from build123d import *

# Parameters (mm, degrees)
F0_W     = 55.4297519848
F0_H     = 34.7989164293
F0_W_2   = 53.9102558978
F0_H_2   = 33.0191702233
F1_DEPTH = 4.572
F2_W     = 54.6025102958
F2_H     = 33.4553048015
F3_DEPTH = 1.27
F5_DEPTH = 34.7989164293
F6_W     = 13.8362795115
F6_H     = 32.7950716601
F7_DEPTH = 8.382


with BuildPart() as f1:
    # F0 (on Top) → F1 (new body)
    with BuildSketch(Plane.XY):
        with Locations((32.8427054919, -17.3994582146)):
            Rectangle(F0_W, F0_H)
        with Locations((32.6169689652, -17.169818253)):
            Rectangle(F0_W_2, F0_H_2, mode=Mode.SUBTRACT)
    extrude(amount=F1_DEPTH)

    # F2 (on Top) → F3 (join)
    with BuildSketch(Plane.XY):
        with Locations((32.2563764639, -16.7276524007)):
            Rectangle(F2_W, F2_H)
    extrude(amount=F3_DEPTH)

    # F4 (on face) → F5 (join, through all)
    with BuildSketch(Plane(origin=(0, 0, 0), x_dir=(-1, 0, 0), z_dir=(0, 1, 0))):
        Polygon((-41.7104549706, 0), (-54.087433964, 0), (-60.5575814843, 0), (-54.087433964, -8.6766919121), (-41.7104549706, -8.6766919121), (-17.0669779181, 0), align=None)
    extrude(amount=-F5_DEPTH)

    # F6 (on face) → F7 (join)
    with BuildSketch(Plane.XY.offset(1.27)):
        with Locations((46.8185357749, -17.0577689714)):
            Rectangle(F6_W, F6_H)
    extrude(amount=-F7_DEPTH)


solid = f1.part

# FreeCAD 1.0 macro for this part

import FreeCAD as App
import Part
import Sketcher
from FreeCAD import Vector
Q = App.Units.Quantity

doc = App.newDocument("Part")
params = doc.addObject("Spreadsheet::Sheet", "Params")
for row, (alias, value) in enumerate([
    ("pad1_length", "0.18 in"),
    ("pad2_length", "0.05 in"),
    ("pad3_length", "34.798916 mm"),
    ("pad4_length", "0.33 in"),
], start=1):
    params.set(f"A{row}", alias)
    params.set(f"B{row}", "=" + value)
    params.setAlias(f"B{row}", alias)

body = doc.addObject("PartDesign::Body", "Body")

sketch1 = body.newObject("Sketcher::SketchObject", "Sketch")
sketch1.AttachmentSupport = (doc.getObject("XY_Plane"), [""])
sketch1.MapMode = "FlatFace"
sketch1.addGeometry([
    Part.LineSegment(Vector(5, 0, 0), Vector(5, -35, 0)),
    Part.LineSegment(Vector(5, -35, 0), Vector(61, -35, 0)),
    Part.LineSegment(Vector(61, -35, 0), Vector(61, 0, 0)),
    Part.LineSegment(Vector(61, 0, 0), Vector(5, 0, 0)),
    Part.LineSegment(Vector(60, -34, 0), Vector(6, -34, 0)),
    Part.LineSegment(Vector(6, -34, 0), Vector(6, -1, 0)),
    Part.LineSegment(Vector(6, -1, 0), Vector(60, -1, 0)),
    Part.LineSegment(Vector(60, -1, 0), Vector(60, -34, 0)),
], False)
sketch1.addConstraint([
    Sketcher.Constraint("Coincident", 0, 2, 1, 1),
    Sketcher.Constraint("Coincident", 1, 2, 2, 1),
    Sketcher.Constraint("Coincident", 2, 2, 3, 1),
    Sketcher.Constraint("Coincident", 3, 2, 0, 1),
    Sketcher.Constraint("Coincident", 4, 2, 5, 1),
    Sketcher.Constraint("Coincident", 5, 2, 6, 1),
    Sketcher.Constraint("Coincident", 6, 2, 7, 1),
    Sketcher.Constraint("Coincident", 7, 2, 4, 1),
    Sketcher.Constraint("Vertical", 0),
    Sketcher.Constraint("Horizontal", 1),
    Sketcher.Constraint("Vertical", 2),
    Sketcher.Constraint("Horizontal", 3),
    Sketcher.Constraint("Horizontal", 4),
    Sketcher.Constraint("Vertical", 5),
    Sketcher.Constraint("Horizontal", 6),
    Sketcher.Constraint("Vertical", 7),
    Sketcher.Constraint("PointOnObject", 2, 2, -1),
    Sketcher.Constraint("DistanceX", 1, 1, 1, 2, Q("55.429752 mm")),
    Sketcher.Constraint("DistanceY", 5, 1, 5, 2, Q("33.01917 mm")),
    Sketcher.Constraint("DistanceX", 4, 2, 4, 1, Q("53.910256 mm")),
    Sketcher.Constraint("DistanceY", 0, 2, 0, 1, Q("34.798916 mm")),
    Sketcher.Constraint("DistanceX", -1, 1, 0, 2, Q("5.127829 mm")),
    Sketcher.Constraint("DistanceX", -1, 1, 4, 2, Q("5.661841 mm")),
    Sketcher.Constraint("DistanceY", 4, 2, -1, 1, Q("33.679403 mm")),
])
pad1 = body.newObject("PartDesign::Pad", "Pad")
pad1.Profile = sketch1
pad1.setExpression("Length", "Params.pad1_length")

sketch2 = body.newObject("Sketcher::SketchObject", "Sketch001")
sketch2.AttachmentSupport = (doc.getObject("XY_Plane"), [""])
sketch2.MapMode = "FlatFace"
sketch2.addGeometry([
    Part.LineSegment(Vector(5, 0, 0), Vector(5, -33, 0)),
    Part.LineSegment(Vector(5, -33, 0), Vector(60, -33, 0)),
    Part.LineSegment(Vector(60, -33, 0), Vector(60, 0, 0)),
    Part.LineSegment(Vector(60, 0, 0), Vector(5, 0, 0)),
], False)
sketch2.addConstraint([
    Sketcher.Constraint("Coincident", 0, 2, 1, 1),
    Sketcher.Constraint("Coincident", 1, 2, 2, 1),
    Sketcher.Constraint("Coincident", 2, 2, 3, 1),
    Sketcher.Constraint("Coincident", 3, 2, 0, 1),
    Sketcher.Constraint("Vertical", 0),
    Sketcher.Constraint("Horizontal", 1),
    Sketcher.Constraint("Vertical", 2),
    Sketcher.Constraint("Horizontal", 3),
    Sketcher.Constraint("PointOnObject", 2, 2, -1),
    Sketcher.Constraint("DistanceX", 1, 1, 1, 2, Q("54.60251 mm")),
    Sketcher.Constraint("DistanceY", 0, 2, 0, 1, Q("33.455305 mm")),
    Sketcher.Constraint("DistanceX", -1, 1, 0, 2, Q("4.955121 mm")),
])
pad2 = body.newObject("PartDesign::Pad", "Pad001")
pad2.Profile = sketch2
pad2.setExpression("Length", "Params.pad2_length")

sketch3 = body.newObject("Sketcher::SketchObject", "Sketch002")
sketch3.AttachmentSupport = (doc.getObject("XZ_Plane"), [""])
sketch3.MapMode = "FlatFace"
sketch3.addGeometry([
    Part.LineSegment(Vector(61, 0, 0), Vector(54, -9, 0)),
    Part.LineSegment(Vector(54, -9, 0), Vector(42, -9, 0)),
    Part.LineSegment(Vector(42, -9, 0), Vector(17, 0, 0)),
    Part.LineSegment(Vector(17, 0, 0), Vector(61, 0, 0)),
], False)
sketch3.addConstraint([
    Sketcher.Constraint("Coincident", 0, 2, 1, 1),
    Sketcher.Constraint("Coincident", 1, 2, 2, 1),
    Sketcher.Constraint("Coincident", 2, 2, 3, 1),
    Sketcher.Constraint("Coincident", 3, 2, 0, 1),
    Sketcher.Constraint("Horizontal", 1),
    Sketcher.Constraint("Horizontal", 3),
    Sketcher.Constraint("PointOnObject", 2, 2, -1),
    Sketcher.Constraint("DistanceX", 1, 2, 1, 1, Q("12.376979 mm")),
    Sketcher.Constraint("DistanceX", 3, 1, 3, 2, Q("43.490604 mm")),
    Sketcher.Constraint("DistanceY", 0, 2, -1, 1, Q("8.676692 mm")),
    Sketcher.Constraint("DistanceX", -1, 1, 3, 2, Q("60.557581 mm")),
    Sketcher.Constraint("Distance", 0, Q("10.823483 mm")),
])
pad3 = body.newObject("PartDesign::Pad", "Pad002")
pad3.Profile = sketch3
pad3.setExpression("Length", "Params.pad3_length")

sketch4 = body.newObject("Sketcher::SketchObject", "Sketch003")
sketch4.AttachmentSupport = (doc.getObject("XY_Plane"), [""])
sketch4.MapMode = "FlatFace"
sketch4.AttachmentOffset = App.Placement(Vector(0, 0, 0.05 * 25.4), App.Rotation())
sketch4.addGeometry([
    Part.LineSegment(Vector(40, -1, 0), Vector(40, -33, 0)),
    Part.LineSegment(Vector(40, -33, 0), Vector(54, -33, 0)),
    Part.LineSegment(Vector(54, -33, 0), Vector(54, -1, 0)),
    Part.LineSegment(Vector(54, -1, 0), Vector(40, -1, 0)),
], False)
sketch4.addConstraint([
    Sketcher.Constraint("Coincident", 0, 2, 1, 1),
    Sketcher.Constraint("Coincident", 1, 2, 2, 1),
    Sketcher.Constraint("Coincident", 2, 2, 3, 1),
    Sketcher.Constraint("Coincident", 3, 2, 0, 1),
    Sketcher.Constraint("Vertical", 0),
    Sketcher.Constraint("Horizontal", 1),
    Sketcher.Constraint("Vertical", 2),
    Sketcher.Constraint("Horizontal", 3),
    Sketcher.Constraint("DistanceX", 1, 1, 1, 2, Q("13.83628 mm")),
    Sketcher.Constraint("DistanceY", 0, 2, 0, 1, Q("32.795072 mm")),
    Sketcher.Constraint("DistanceX", -1, 1, 0, 2, Q("39.900396 mm")),
    Sketcher.Constraint("DistanceY", 0, 2, -1, 1, Q("33.455305 mm")),
])
pad4 = body.newObject("PartDesign::Pad", "Pad003")
pad4.Profile = sketch4
pad4.setExpression("Length", "Params.pad4_length")
pad4.Reversed = True

doc.recompute()
